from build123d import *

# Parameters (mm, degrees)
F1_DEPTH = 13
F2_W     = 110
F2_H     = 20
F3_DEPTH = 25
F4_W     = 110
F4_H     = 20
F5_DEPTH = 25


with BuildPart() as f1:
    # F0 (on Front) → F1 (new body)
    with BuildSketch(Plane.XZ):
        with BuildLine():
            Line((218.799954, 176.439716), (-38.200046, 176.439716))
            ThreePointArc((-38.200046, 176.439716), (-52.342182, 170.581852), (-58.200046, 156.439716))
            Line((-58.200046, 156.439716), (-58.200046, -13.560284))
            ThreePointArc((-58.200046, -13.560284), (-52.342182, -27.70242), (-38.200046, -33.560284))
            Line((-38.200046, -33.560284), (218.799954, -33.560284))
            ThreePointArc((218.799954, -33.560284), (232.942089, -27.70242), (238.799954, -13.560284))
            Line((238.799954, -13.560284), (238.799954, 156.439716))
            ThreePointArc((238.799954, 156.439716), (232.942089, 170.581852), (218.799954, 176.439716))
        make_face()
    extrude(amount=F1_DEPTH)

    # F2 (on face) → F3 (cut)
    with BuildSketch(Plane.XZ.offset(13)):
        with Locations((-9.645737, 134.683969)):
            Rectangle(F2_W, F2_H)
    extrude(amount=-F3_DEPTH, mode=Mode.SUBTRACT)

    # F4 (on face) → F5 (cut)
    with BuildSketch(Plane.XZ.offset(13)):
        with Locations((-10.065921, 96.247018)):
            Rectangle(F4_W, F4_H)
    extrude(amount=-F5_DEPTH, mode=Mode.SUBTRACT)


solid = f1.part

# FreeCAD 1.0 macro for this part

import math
import FreeCAD as App
import Part
import Sketcher

doc = App.newDocument("Part")
body = doc.addObject("PartDesign::Body", "Body")

# Sketch on XZ plane
sketch1 = body.newObject("Sketcher::SketchObject", "Sketch")
sketch1.AttachmentSupport = (doc.getObject("XZ_Plane"), [""])
sketch1.MapMode = "FlatFace"
sketch1.addGeometry([
    Part.LineSegment(App.Vector(218.799954, 176.439716, 0), App.Vector(-38.200046, 176.439716, 0)),  # 0
    Part.ArcOfCircle(Part.Circle(App.Vector(-38.200047, 156.439717, 0), App.Vector(0, 0, 1), 19.999999), math.radians(89.999996), math.radians(180.000004)),  # 1
    Part.LineSegment(App.Vector(-58.200046, 156.439716, 0), App.Vector(-58.200046, -13.560284, 0)),  # 2
    Part.ArcOfCircle(Part.Circle(App.Vector(-38.200047, -13.560285, 0), App.Vector(0, 0, 1), 19.999999), math.radians(179.999996), math.radians(270.000004)),  # 3
    Part.LineSegment(App.Vector(-38.200046, -33.560284, 0), App.Vector(218.799954, -33.560284, 0)),  # 4
    Part.ArcOfCircle(Part.Circle(App.Vector(218.799954, -13.560284, 0), App.Vector(0, 0, 1), 20), math.radians(-89.999999), math.radians(-0.000001)),  # 5
    Part.LineSegment(App.Vector(238.799954, -13.560284, 0), App.Vector(238.799954, 156.439716, 0)),  # 6
    Part.ArcOfCircle(Part.Circle(App.Vector(218.799954, 156.439716, 0), App.Vector(0, 0, 1), 20), math.radians(0.000001), math.radians(89.999999)),  # 7
], False)
sketch1.addConstraint([
    Sketcher.Constraint("Tangent", 0, 2, 1, 1),
    Sketcher.Constraint("Tangent", 1, 2, 2, 1),
    Sketcher.Constraint("Tangent", 2, 2, 3, 1),
    Sketcher.Constraint("Tangent", 3, 2, 4, 1),
    Sketcher.Constraint("Tangent", 4, 2, 5, 1),
    Sketcher.Constraint("Tangent", 5, 2, 6, 1),
    Sketcher.Constraint("Tangent", 6, 2, 7, 1),
    Sketcher.Constraint("Tangent", 7, 2, 0, 1),
    Sketcher.Constraint("Horizontal", 0),
    Sketcher.Constraint("Vertical", 2),
    Sketcher.Constraint("Horizontal", 4),
    Sketcher.Constraint("Vertical", 6),
    Sketcher.Constraint("Equal", 1, 3),
    Sketcher.Constraint("Equal", 3, 5),
    Sketcher.Constraint("Equal", 5, 7),
    Sketcher.Constraint("Radius", 1, 19.999999),
    Sketcher.Constraint("DistanceX", 0, 2, 0, 1, 257.0),
    Sketcher.Constraint("DistanceY", 2, 2, 2, 1, 170.0),
    Sketcher.Constraint("DistanceX", 1, 3, -1, 1, 38.200047),
    Sketcher.Constraint("DistanceY", -1, 1, 1, 3, 156.439717),
])
pad1 = body.newObject("PartDesign::Pad", "Pad")
pad1.Profile = sketch1
pad1.Length = 13

# Sketch on XZ plane
sketch2 = body.newObject("Sketcher::SketchObject", "Sketch001")
sketch2.AttachmentSupport = (doc.getObject("XZ_Plane"), [""])
sketch2.MapMode = "FlatFace"
sketch2.AttachmentOffset = App.Placement(App.Vector(0, 0, 13), App.Rotation())
sketch2.addGeometry([
    Part.LineSegment(App.Vector(-64.645737, 144.683969, 0), App.Vector(-64.645737, 124.683969, 0)),
    Part.LineSegment(App.Vector(-64.645737, 124.683969, 0), App.Vector(45.354263, 124.683969, 0)),
    Part.LineSegment(App.Vector(45.354263, 124.683969, 0), App.Vector(45.354263, 144.683969, 0)),
    Part.LineSegment(App.Vector(45.354263, 144.683969, 0), App.Vector(-64.645737, 144.683969, 0)),
], False)
sketch2.addConstraint([
    Sketcher.Constraint("Coincident", 0, 2, 1, 1),
    Sketcher.Constraint("Coincident", 1, 2, 2, 1),
    Sketcher.Constraint("Coincident", 2, 2, 3, 1),
    Sketcher.Constraint("Coincident", 3, 2, 0, 1),
    Sketcher.Constraint("Vertical", 0),
    Sketcher.Constraint("Horizontal", 1),
    Sketcher.Constraint("Vertical", 2),
    Sketcher.Constraint("Horizontal", 3),
    Sketcher.Constraint("DistanceX", 1, 1, 1, 2, 110.0),
    Sketcher.Constraint("DistanceY", 0, 2, 0, 1, 20.0),
    Sketcher.Constraint("DistanceY", -1, 1, 0, 2, 124.683969),
    Sketcher.Constraint("DistanceX", 0, 2, -1, 1, 64.645737),
])
pocket1 = body.newObject("PartDesign::Pocket", "Pocket")
pocket1.Profile = sketch2
pocket1.Length = 25

# Sketch on XZ plane
sketch3 = body.newObject("Sketcher::SketchObject", "Sketch002")
sketch3.AttachmentSupport = (doc.getObject("XZ_Plane"), [""])
sketch3.MapMode = "FlatFace"
sketch3.AttachmentOffset = App.Placement(App.Vector(0, 0, 13), App.Rotation())
sketch3.addGeometry([
    Part.LineSegment(App.Vector(-65.065921, 106.247018, 0), App.Vector(-65.065921, 86.247018, 0)),
    Part.LineSegment(App.Vector(-65.065921, 86.247018, 0), App.Vector(44.934079, 86.247018, 0)),
    Part.LineSegment(App.Vector(44.934079, 86.247018, 0), App.Vector(44.934079, 106.247018, 0)),
    Part.LineSegment(App.Vector(44.934079, 106.247018, 0), App.Vector(-65.065921, 106.247018, 0)),
], False)
sketch3.addConstraint([
    Sketcher.Constraint("Coincident", 0, 2, 1, 1),
    Sketcher.Constraint("Coincident", 1, 2, 2, 1),
    Sketcher.Constraint("Coincident", 2, 2, 3, 1),
    Sketcher.Constraint("Coincident", 3, 2, 0, 1),
    Sketcher.Constraint("Vertical", 0),
    Sketcher.Constraint("Horizontal", 1),
    Sketcher.Constraint("Vertical", 2),
    Sketcher.Constraint("Horizontal", 3),
    Sketcher.Constraint("DistanceX", 1, 1, 1, 2, 110.0),
    Sketcher.Constraint("DistanceY", 0, 2, 0, 1, 20.0),
    Sketcher.Constraint("DistanceX", 0, 2, -1, 1, 65.065921),
    Sketcher.Constraint("DistanceY", -1, 1, 0, 2, 86.247018),
])
pocket2 = body.newObject("PartDesign::Pocket", "Pocket001")
pocket2.Profile = sketch3
pocket2.Length = 25

doc.recompute()
